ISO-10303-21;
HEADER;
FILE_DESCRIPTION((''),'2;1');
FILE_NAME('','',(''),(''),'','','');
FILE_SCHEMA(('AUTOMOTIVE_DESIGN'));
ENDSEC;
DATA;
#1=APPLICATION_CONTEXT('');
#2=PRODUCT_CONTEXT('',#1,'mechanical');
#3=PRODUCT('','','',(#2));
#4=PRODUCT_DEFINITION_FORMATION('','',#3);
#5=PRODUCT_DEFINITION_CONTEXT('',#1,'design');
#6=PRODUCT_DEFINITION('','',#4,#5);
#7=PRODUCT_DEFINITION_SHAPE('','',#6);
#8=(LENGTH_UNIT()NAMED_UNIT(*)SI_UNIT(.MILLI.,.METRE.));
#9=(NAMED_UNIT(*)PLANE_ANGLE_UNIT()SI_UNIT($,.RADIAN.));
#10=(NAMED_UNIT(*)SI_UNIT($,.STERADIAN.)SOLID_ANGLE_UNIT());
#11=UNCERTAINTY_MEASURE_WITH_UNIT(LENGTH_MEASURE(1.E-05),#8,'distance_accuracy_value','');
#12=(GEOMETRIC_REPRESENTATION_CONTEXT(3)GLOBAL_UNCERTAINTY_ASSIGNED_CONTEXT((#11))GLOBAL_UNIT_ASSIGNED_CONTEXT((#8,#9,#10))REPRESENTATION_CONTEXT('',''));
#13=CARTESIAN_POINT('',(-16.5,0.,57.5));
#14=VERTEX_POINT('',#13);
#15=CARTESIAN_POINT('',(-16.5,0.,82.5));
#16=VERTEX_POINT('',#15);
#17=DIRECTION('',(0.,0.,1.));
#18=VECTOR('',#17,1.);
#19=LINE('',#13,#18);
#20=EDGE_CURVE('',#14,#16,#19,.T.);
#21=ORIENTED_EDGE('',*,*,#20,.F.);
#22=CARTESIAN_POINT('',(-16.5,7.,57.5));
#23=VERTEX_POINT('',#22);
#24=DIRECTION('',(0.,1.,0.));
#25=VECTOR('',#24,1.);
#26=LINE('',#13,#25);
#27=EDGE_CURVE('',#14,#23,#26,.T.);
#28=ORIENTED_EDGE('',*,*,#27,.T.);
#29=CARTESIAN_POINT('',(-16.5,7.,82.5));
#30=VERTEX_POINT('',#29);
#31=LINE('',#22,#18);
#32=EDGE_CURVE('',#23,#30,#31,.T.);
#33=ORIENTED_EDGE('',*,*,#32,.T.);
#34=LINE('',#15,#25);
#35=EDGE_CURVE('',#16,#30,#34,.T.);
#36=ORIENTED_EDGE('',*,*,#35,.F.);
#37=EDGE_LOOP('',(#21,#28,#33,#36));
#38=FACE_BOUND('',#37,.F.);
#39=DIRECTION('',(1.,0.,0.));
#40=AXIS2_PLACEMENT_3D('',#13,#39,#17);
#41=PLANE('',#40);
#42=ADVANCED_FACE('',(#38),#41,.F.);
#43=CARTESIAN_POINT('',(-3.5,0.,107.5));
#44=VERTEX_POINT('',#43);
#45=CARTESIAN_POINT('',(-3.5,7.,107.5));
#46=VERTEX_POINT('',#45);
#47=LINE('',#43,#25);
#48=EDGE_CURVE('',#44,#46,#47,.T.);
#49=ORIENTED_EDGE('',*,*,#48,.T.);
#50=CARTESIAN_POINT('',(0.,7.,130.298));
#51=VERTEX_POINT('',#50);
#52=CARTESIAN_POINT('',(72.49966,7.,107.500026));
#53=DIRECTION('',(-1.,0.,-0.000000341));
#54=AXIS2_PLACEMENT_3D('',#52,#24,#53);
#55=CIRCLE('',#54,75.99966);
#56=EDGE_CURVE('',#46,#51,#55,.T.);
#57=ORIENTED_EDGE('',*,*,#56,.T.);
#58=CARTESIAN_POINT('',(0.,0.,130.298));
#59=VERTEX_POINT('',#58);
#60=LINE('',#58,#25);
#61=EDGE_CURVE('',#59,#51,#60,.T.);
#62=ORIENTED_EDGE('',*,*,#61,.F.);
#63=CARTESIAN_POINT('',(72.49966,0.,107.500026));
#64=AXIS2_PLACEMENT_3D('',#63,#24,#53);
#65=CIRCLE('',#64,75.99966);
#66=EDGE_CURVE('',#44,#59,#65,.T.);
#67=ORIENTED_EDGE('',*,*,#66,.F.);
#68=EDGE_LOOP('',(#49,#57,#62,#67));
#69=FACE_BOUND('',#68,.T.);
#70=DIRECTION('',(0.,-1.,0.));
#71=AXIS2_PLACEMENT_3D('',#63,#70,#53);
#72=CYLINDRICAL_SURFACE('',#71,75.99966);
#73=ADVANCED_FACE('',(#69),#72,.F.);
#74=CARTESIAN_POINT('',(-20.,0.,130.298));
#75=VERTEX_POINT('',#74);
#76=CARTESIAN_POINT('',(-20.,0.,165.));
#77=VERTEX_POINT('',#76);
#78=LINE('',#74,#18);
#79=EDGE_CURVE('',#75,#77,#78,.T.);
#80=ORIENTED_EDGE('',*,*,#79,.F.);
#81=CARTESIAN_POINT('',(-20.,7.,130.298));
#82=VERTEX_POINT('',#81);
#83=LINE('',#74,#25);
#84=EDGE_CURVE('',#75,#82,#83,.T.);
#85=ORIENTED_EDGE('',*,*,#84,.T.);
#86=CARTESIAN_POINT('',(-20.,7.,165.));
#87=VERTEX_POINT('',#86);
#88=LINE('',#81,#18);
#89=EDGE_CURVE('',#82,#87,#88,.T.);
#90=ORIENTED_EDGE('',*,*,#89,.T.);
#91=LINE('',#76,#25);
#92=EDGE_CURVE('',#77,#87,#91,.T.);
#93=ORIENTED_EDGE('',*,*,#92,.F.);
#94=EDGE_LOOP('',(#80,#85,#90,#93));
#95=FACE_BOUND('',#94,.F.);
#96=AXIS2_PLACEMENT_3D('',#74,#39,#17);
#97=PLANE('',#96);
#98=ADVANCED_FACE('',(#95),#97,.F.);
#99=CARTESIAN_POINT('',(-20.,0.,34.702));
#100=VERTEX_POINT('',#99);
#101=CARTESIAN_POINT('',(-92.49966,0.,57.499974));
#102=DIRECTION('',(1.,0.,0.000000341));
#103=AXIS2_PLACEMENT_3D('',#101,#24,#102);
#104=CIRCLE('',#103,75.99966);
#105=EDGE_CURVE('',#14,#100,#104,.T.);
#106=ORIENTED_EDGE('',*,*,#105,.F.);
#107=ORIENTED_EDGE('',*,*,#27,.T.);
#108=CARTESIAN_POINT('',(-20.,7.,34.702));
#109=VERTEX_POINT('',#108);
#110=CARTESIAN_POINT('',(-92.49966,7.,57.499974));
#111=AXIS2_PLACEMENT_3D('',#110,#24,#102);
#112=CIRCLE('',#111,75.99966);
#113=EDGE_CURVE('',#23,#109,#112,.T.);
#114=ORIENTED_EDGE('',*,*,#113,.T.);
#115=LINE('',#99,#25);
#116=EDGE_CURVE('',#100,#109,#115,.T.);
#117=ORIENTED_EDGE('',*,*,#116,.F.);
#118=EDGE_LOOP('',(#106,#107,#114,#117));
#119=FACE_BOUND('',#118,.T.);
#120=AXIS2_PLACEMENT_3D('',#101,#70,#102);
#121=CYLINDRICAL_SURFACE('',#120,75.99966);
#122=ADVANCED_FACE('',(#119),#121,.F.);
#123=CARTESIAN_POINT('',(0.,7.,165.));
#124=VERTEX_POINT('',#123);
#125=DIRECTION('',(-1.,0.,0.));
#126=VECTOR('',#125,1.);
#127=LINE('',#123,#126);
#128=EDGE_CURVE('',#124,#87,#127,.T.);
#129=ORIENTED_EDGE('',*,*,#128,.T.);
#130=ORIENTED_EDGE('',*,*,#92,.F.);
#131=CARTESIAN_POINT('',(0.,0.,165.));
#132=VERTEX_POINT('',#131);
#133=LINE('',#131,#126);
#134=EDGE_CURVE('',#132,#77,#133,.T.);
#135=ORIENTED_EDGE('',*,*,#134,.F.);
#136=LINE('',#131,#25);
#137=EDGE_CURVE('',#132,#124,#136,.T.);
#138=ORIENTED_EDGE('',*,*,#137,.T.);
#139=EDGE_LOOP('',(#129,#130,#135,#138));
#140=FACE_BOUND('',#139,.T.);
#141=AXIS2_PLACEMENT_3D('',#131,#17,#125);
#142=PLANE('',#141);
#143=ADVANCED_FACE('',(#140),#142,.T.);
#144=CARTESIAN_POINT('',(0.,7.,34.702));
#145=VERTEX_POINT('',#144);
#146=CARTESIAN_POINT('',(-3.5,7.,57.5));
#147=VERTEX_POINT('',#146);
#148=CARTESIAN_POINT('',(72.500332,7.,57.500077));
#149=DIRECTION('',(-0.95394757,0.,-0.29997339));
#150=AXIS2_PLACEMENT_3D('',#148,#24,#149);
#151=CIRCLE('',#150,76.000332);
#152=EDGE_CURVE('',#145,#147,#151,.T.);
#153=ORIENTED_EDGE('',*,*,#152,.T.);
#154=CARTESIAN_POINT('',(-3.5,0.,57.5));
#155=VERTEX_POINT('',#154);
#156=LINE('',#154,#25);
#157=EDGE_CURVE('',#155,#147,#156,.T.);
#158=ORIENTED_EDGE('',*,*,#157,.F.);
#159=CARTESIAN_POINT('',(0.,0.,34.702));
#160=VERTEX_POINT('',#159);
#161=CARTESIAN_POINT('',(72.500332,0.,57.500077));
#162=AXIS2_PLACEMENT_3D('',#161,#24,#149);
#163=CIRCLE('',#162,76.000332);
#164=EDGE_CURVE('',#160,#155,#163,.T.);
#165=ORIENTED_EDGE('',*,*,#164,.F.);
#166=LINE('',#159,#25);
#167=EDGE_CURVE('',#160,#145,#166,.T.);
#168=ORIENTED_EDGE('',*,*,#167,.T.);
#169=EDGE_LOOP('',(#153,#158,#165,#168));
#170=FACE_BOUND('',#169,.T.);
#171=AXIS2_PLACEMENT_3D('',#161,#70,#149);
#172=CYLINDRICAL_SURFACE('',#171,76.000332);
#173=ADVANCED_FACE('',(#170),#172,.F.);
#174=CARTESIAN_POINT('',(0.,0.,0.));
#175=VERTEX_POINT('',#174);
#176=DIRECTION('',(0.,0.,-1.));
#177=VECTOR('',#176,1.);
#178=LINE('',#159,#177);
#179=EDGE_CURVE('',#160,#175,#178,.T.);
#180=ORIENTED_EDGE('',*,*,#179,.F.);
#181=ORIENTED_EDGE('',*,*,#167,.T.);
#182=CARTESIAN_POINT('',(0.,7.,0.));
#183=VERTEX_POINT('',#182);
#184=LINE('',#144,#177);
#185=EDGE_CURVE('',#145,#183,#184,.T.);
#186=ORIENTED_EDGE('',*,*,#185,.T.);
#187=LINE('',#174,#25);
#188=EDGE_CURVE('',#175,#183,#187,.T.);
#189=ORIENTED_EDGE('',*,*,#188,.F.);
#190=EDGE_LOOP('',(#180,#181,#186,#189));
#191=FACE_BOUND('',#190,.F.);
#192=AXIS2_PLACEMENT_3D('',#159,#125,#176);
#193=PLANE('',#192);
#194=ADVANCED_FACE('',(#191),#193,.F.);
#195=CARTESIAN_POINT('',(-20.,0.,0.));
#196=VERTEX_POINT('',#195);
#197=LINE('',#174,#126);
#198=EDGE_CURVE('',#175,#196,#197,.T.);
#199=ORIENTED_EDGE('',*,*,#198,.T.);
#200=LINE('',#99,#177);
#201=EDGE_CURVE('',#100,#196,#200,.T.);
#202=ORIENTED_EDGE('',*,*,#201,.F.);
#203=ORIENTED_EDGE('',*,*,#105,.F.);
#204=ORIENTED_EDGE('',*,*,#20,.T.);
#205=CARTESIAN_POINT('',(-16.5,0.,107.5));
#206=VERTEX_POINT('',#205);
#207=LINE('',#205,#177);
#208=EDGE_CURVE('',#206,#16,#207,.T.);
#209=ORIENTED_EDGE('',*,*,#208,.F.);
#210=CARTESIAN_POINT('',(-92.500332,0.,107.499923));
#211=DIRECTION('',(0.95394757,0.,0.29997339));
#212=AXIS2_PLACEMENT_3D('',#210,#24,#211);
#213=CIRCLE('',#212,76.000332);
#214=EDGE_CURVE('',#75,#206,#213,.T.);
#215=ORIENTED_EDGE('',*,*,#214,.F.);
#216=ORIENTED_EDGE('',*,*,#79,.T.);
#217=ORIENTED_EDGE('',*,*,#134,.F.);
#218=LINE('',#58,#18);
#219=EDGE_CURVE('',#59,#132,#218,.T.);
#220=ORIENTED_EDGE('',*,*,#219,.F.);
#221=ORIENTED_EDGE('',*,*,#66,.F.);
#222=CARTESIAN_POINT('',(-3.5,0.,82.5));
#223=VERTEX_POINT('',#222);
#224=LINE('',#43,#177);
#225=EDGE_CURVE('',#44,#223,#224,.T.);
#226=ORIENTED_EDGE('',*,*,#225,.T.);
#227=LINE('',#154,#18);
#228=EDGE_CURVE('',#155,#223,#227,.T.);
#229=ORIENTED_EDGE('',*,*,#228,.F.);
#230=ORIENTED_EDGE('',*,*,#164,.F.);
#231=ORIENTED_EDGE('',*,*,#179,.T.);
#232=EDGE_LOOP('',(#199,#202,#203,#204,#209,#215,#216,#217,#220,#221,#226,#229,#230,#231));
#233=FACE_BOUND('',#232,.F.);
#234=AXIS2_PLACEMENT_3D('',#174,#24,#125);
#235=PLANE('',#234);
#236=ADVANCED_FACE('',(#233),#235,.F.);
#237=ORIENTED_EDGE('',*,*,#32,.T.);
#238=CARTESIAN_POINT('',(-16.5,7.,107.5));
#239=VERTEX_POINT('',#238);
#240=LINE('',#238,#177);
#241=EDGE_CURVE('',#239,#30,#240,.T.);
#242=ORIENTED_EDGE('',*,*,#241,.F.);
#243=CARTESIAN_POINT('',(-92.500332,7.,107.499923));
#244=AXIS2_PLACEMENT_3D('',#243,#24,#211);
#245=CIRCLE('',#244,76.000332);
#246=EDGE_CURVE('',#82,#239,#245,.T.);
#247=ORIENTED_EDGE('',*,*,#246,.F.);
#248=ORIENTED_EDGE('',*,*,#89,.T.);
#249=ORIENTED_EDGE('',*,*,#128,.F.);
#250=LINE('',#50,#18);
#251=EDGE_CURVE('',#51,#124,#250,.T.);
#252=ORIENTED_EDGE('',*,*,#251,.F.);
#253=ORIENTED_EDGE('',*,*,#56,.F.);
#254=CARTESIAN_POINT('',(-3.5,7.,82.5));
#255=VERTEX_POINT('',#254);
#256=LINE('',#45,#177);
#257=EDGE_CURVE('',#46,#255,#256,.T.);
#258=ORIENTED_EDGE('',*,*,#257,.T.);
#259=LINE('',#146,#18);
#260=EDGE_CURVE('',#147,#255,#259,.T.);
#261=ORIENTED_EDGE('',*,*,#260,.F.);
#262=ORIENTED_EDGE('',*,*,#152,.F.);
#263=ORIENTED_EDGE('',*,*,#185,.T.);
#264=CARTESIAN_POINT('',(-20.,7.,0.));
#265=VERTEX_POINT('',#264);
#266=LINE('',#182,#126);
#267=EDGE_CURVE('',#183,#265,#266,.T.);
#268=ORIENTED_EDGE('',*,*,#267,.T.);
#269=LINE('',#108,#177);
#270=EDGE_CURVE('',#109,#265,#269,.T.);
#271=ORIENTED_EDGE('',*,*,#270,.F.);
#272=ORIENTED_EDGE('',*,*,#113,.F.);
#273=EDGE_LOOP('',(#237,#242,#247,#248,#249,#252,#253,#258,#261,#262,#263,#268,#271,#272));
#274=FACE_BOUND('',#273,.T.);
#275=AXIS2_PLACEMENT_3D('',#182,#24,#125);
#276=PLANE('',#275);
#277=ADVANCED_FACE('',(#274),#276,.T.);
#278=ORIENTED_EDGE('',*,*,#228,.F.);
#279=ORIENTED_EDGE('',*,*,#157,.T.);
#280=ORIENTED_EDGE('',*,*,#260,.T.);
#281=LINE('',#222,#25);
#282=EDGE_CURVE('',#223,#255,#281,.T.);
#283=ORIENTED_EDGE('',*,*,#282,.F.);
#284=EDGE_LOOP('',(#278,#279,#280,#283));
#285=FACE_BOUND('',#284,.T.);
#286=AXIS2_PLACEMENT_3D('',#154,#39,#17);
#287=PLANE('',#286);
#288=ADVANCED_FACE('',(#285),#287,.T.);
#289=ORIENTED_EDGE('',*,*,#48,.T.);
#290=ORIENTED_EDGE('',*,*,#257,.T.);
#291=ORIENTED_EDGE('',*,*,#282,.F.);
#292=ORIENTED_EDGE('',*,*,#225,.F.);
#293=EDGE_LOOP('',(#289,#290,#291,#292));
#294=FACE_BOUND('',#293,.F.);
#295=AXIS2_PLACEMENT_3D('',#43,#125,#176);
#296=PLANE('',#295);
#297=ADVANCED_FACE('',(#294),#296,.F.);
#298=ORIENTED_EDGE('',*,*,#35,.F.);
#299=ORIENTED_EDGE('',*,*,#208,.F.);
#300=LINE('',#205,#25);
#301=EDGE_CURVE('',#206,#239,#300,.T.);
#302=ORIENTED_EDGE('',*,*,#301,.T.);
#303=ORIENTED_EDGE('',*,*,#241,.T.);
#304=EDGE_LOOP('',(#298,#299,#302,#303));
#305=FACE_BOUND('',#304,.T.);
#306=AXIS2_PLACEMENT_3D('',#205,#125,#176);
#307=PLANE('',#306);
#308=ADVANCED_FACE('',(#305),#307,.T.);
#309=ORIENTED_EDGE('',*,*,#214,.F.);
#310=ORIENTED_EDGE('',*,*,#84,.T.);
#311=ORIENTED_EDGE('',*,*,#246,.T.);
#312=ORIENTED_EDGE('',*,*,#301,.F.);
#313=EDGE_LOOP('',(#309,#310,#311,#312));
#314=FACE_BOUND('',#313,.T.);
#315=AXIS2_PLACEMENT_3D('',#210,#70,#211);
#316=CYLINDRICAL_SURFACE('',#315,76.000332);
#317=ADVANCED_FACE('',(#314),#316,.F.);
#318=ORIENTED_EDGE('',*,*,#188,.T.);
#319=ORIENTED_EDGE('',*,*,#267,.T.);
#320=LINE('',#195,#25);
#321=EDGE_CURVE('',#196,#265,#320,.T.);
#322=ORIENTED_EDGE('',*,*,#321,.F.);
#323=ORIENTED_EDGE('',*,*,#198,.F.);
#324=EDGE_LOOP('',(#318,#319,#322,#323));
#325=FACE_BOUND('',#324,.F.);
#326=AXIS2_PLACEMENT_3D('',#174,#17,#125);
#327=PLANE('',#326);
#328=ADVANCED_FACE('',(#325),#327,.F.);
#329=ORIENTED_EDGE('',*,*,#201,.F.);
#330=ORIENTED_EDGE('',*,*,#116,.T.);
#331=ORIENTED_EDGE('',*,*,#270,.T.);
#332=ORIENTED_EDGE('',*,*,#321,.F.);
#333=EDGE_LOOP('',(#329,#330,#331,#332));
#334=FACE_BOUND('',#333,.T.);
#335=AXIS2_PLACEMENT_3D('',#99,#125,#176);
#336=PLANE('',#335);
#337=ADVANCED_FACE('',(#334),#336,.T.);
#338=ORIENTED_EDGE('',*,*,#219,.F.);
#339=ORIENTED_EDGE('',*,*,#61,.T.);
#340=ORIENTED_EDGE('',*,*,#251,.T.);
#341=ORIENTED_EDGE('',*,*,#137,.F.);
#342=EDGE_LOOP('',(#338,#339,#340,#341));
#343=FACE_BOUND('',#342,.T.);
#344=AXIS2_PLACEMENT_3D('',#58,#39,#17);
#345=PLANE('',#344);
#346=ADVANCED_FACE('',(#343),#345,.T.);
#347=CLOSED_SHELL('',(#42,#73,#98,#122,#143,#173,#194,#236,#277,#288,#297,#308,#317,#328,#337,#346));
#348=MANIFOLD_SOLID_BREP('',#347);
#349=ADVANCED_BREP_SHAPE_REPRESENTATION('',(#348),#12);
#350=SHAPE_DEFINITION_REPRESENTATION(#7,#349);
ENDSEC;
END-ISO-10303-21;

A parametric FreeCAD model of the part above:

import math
import FreeCAD as App
import Part
import Sketcher
from FreeCAD import Vector
Q = App.Units.Quantity

doc = App.newDocument("Part")
body = doc.addObject("PartDesign::Body", "Body")

# Sketch on XZ plane
sketch1 = body.newObject("Sketcher::SketchObject", "Sketch")
sketch1.AttachmentSupport = (doc.getObject("XZ_Plane"), [""])
sketch1.MapMode = "FlatFace"
sketch1.addGeometry([
    Part.LineSegment(Vector(0, 35, 0), Vector(0, 0, 0)),  # 0
    Part.LineSegment(Vector(0, 0, 0), Vector(-20, 0, 0)),  # 1
    Part.LineSegment(Vector(-20, 0, 0), Vector(-20, 35, 0)),  # 2
    Part.ArcOfCircle(Part.Circle(Vector(-92, 58, 0), Vector(0, 0, 1), 76), math.radians(-17.46), math.radians(0)),  # 3
    Part.LineSegment(Vector(-16, 58, 0), Vector(-16, 108, 0)),  # 4
    Part.ArcOfCircle(Part.Circle(Vector(-92, 108, 0), Vector(0, 0, 1), 76), math.radians(0), math.radians(17.46)),  # 5
    Part.LineSegment(Vector(-20, 130, 0), Vector(-20, 165, 0)),  # 6
    Part.LineSegment(Vector(-20, 165, 0), Vector(0, 165, 0)),  # 7
    Part.LineSegment(Vector(0, 165, 0), Vector(0, 130, 0)),  # 8
    Part.ArcOfCircle(Part.Circle(Vector(72, 108, 0), Vector(0, 0, 1), 76), math.radians(162.54), math.radians(180)),  # 9
    Part.LineSegment(Vector(-4, 108, 0), Vector(-4, 58, 0)),  # 10
    Part.ArcOfCircle(Part.Circle(Vector(72, 58, 0), Vector(0, 0, 1), 76), math.radians(180), math.radians(197.46)),  # 11
], False)
sketch1.addConstraint([
    Sketcher.Constraint("Coincident", 0, 2, 1, 1),
    Sketcher.Constraint("Coincident", 1, 2, 2, 1),
    Sketcher.Constraint("Coincident", 2, 2, 3, 1),
    Sketcher.Constraint("Tangent", 3, 2, 4, 1),
    Sketcher.Constraint("Tangent", 4, 2, 5, 1),
    Sketcher.Constraint("Coincident", 5, 2, 6, 1),
    Sketcher.Constraint("Coincident", 6, 2, 7, 1),
    Sketcher.Constraint("Coincident", 7, 2, 8, 1),
    Sketcher.Constraint("Coincident", 8, 2, 9, 1),
    Sketcher.Constraint("Tangent", 9, 2, 10, 1),
    Sketcher.Constraint("Tangent", 10, 2, 11, 1),
    Sketcher.Constraint("Coincident", 11, 2, 0, 1),
    Sketcher.Constraint("Vertical", 0),
    Sketcher.Constraint("Horizontal", 1),
    Sketcher.Constraint("Vertical", 2),
    Sketcher.Constraint("Vertical", 4),
    Sketcher.Constraint("Vertical", 6),
    Sketcher.Constraint("Horizontal", 7),
    Sketcher.Constraint("Vertical", 8),
    Sketcher.Constraint("Vertical", 10),
    Sketcher.Constraint("Coincident", 0, 2, -1, 1),
    Sketcher.Constraint("Equal", 3, 5),
    Sketcher.Constraint("Equal", 5, 9),
    Sketcher.Constraint("Equal", 9, 11),
    Sketcher.Constraint("PointOnObject", 7, 2, -2),
    Sketcher.Constraint("Horizontal", 5, 3, 9, 3),
    Sketcher.Constraint("Horizontal", 3, 3, 11, 3),
    Sketcher.Constraint("Horizontal", 5, 2, 8, 2),
    Sketcher.Constraint("Horizontal", 2, 2, 11, 2),
    Sketcher.Constraint("Equal", 2, 6),
    Sketcher.Constraint("Radius", 3, Q("76 mm")),
    Sketcher.Constraint("DistanceX", 1, 2, 1, 1, Q("20 mm")),
    Sketcher.Constraint("DistanceX", 4, 2, 9, 2, Q("13 mm")),
    Sketcher.Constraint("DistanceY", 4, 1, 4, 2, Q("50 mm")),
    Sketcher.Constraint("DistanceY", -1, 1, 6, 2, Q("165 mm")),
])
pad1 = body.newObject("PartDesign::Pad", "Pad")
pad1.Profile = sketch1
pad1.Length = 7
pad1.Reversed = True

doc.recompute()
